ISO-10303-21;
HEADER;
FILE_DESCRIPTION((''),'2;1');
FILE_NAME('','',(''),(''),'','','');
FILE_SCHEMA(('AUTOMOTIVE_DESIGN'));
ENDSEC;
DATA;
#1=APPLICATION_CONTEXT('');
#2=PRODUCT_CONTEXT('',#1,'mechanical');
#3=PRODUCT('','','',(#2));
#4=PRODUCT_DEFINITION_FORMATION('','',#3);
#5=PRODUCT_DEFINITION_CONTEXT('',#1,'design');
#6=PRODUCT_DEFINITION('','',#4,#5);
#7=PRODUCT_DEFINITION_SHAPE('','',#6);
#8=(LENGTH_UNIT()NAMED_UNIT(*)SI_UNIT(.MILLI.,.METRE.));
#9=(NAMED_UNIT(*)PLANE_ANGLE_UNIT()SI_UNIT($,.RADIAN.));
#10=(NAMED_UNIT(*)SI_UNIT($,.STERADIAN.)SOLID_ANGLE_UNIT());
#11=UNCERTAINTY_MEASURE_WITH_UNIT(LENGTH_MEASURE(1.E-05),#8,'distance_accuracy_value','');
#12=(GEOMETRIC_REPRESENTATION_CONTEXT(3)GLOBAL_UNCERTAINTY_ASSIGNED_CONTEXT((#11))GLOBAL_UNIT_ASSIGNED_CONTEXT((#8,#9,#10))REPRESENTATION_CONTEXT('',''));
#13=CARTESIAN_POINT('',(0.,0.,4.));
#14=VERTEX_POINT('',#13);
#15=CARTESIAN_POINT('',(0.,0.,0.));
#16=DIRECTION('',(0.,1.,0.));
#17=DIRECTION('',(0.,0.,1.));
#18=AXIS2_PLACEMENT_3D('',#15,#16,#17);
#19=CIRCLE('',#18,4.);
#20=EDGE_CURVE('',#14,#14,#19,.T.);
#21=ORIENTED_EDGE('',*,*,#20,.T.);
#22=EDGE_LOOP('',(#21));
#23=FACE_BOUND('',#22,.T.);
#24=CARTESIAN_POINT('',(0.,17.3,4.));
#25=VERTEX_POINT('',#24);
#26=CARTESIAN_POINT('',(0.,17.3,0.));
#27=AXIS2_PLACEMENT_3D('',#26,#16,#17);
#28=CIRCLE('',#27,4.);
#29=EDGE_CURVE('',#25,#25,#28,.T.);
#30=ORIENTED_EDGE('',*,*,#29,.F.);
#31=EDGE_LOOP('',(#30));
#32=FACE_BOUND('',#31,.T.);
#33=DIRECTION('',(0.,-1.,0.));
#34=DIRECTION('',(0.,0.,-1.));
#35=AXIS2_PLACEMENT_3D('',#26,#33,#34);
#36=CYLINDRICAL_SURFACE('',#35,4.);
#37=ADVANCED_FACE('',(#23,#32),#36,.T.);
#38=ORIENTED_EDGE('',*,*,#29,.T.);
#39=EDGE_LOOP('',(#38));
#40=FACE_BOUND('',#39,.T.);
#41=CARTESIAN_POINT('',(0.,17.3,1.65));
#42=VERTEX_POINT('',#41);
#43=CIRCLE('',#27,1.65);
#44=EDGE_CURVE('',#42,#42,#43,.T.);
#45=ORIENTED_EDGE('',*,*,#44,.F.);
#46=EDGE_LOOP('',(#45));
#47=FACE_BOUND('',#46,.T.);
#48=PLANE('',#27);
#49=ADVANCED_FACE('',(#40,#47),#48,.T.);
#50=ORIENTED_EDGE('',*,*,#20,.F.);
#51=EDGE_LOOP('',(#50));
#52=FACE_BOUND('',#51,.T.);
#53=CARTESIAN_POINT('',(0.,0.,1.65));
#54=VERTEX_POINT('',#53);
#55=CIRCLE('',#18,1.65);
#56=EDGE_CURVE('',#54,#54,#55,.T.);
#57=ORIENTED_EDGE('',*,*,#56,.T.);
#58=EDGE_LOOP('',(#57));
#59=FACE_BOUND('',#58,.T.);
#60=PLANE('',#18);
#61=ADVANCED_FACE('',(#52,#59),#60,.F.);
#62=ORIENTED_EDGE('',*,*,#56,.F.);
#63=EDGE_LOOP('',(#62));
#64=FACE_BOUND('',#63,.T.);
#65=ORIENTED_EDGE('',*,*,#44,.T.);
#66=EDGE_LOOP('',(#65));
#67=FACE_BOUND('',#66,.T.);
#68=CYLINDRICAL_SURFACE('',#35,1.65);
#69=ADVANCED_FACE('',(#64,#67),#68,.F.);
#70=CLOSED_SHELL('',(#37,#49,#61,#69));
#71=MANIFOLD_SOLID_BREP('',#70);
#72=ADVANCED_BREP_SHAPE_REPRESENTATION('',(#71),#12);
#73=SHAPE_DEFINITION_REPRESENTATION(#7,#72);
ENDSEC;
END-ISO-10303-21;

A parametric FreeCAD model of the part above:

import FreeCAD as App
import Part
import Sketcher

V = App.Vector
Q = App.Units.Quantity

doc = App.newDocument("Part")
params = doc.addObject("Spreadsheet::Sheet", "Params")
for row, (alias, value) in enumerate([
    ("sketch1_diameter", "8 mm"),
    ("sketch1_diameter2", "3.3 mm"),
    ("pad1_length", "17.3 mm"),
], start=1):
    params.set(f"A{row}", alias)
    params.set(f"B{row}", "=" + value)
    params.setAlias(f"B{row}", alias)

body = doc.addObject("PartDesign::Body", "Body")

# Sketch on XZ plane
sketch1 = body.newObject("Sketcher::SketchObject", "Sketch")
sketch1.AttachmentSupport = (doc.getObject("XZ_Plane"), [""])
sketch1.MapMode = "FlatFace"
sketch1.addGeometry([
    Part.Circle(V(0, 0, 0), V(0, 0, 1), 4),
    Part.Circle(V(0, 0, 0), V(0, 0, 1), 1.6),
], False)
sketch1.addConstraint([
    Sketcher.Constraint("Coincident", 0, 3, -1, 1),
    Sketcher.Constraint("Coincident", 1, 3, -1, 1),
    Sketcher.Constraint("Diameter", 0, Q("8 mm")),
    Sketcher.Constraint("Diameter", 1, Q("3.3 mm")),
])
sketch1.setExpression("Constraints[2]", "Params.sketch1_diameter")
sketch1.setExpression("Constraints[3]", "Params.sketch1_diameter2")
pad1 = body.newObject("PartDesign::Pad", "Pad")
pad1.Profile = sketch1
pad1.setExpression("Length", "Params.pad1_length")
pad1.Reversed = True

doc.recompute()
